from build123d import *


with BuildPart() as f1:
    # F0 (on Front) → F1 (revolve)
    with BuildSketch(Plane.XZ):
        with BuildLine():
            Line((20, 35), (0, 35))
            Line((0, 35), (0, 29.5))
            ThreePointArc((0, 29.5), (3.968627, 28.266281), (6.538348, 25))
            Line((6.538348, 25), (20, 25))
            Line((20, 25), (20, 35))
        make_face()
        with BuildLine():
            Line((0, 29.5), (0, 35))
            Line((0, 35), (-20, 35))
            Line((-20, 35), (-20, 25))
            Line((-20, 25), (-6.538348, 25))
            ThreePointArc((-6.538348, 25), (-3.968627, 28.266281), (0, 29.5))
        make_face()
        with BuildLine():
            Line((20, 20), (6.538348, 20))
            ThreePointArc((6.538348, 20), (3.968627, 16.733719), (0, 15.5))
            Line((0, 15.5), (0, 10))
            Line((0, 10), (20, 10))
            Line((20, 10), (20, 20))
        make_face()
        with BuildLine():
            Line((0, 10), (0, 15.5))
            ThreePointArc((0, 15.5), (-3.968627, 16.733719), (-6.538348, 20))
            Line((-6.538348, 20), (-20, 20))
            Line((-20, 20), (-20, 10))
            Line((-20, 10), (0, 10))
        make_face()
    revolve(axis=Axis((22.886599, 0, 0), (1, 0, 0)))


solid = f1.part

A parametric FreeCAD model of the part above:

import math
import FreeCAD as App
import Part
import Sketcher
Q = App.Units.Quantity

doc = App.newDocument("Part")
body = doc.addObject("PartDesign::Body", "Body")
body.AllowCompound = True

# Sketch on XZ plane
sketch1 = doc.addObject("Sketcher::SketchObject", "Sketch")
body.addObject(sketch1)
sketch1.AttachmentSupport = (doc.XZ_Plane, [""])
sketch1.MapMode = "FlatFace"
sketch1.addGeometry(Part.LineSegment(App.Vector(20, 35, 0), App.Vector(-20, 35, 0)), False)
sketch1.addGeometry(Part.LineSegment(App.Vector(-20, 35, 0), App.Vector(-20, 25, 0)), False)
sketch1.addGeometry(Part.LineSegment(App.Vector(-20, 25, 0), App.Vector(-7, 25, 0)), False)
sketch1.addGeometry(Part.ArcOfCircle(Part.Circle(App.Vector(0, 23, 0), App.Vector(0, 0, 1), 7), math.radians(90), math.radians(159)), False)
sketch1.addGeometry(Part.ArcOfCircle(Part.Circle(App.Vector(0, 23, 0), App.Vector(0, 0, 1), 7), math.radians(21), math.radians(90)), False)
sketch1.addGeometry(Part.LineSegment(App.Vector(7, 25, 0), App.Vector(20, 25, 0)), False)
sketch1.addGeometry(Part.LineSegment(App.Vector(20, 25, 0), App.Vector(20, 35, 0)), False)
sketch1.addGeometry(Part.LineSegment(App.Vector(20, 20, 0), App.Vector(7, 20, 0)), False)
sketch1.addGeometry(Part.ArcOfCircle(Part.Circle(App.Vector(0, 22, 0), App.Vector(0, 0, 1), 7), math.radians(-90), math.radians(-21)), False)
sketch1.addGeometry(Part.ArcOfCircle(Part.Circle(App.Vector(0, 22, 0), App.Vector(0, 0, 1), 7), math.radians(-159), math.radians(-90)), False)
sketch1.addGeometry(Part.LineSegment(App.Vector(-7, 20, 0), App.Vector(-20, 20, 0)), False)
sketch1.addGeometry(Part.LineSegment(App.Vector(-20, 20, 0), App.Vector(-20, 10, 0)), False)
sketch1.addGeometry(Part.LineSegment(App.Vector(-20, 10, 0), App.Vector(20, 10, 0)), False)
sketch1.addGeometry(Part.LineSegment(App.Vector(20, 10, 0), App.Vector(20, 20, 0)), False)
sketch1.addConstraint(Sketcher.Constraint("Coincident", 0, 2, 1, 1))
sketch1.addConstraint(Sketcher.Constraint("Coincident", 1, 2, 2, 1))
sketch1.addConstraint(Sketcher.Constraint("Coincident", 2, 2, 3, 2))
sketch1.addConstraint(Sketcher.Constraint("Tangent", 3, 1, 4, 2))
sketch1.addConstraint(Sketcher.Constraint("Coincident", 4, 1, 5, 1))
sketch1.addConstraint(Sketcher.Constraint("Coincident", 5, 2, 6, 1))
sketch1.addConstraint(Sketcher.Constraint("Coincident", 6, 2, 0, 1))
sketch1.addConstraint(Sketcher.Constraint("Coincident", 7, 2, 8, 2))
sketch1.addConstraint(Sketcher.Constraint("Tangent", 8, 1, 9, 2))
sketch1.addConstraint(Sketcher.Constraint("Coincident", 9, 1, 10, 1))
sketch1.addConstraint(Sketcher.Constraint("Coincident", 10, 2, 11, 1))
sketch1.addConstraint(Sketcher.Constraint("Coincident", 11, 2, 12, 1))
sketch1.addConstraint(Sketcher.Constraint("Coincident", 12, 2, 13, 1))
sketch1.addConstraint(Sketcher.Constraint("Coincident", 13, 2, 7, 1))
sketch1.addConstraint(Sketcher.Constraint("Horizontal", 0))
sketch1.addConstraint(Sketcher.Constraint("Vertical", 1))
sketch1.addConstraint(Sketcher.Constraint("Horizontal", 2))
sketch1.addConstraint(Sketcher.Constraint("Horizontal", 5))
sketch1.addConstraint(Sketcher.Constraint("Vertical", 6))
sketch1.addConstraint(Sketcher.Constraint("Horizontal", 7))
sketch1.addConstraint(Sketcher.Constraint("Horizontal", 10))
sketch1.addConstraint(Sketcher.Constraint("Vertical", 11))
sketch1.addConstraint(Sketcher.Constraint("Horizontal", 12))
sketch1.addConstraint(Sketcher.Constraint("Vertical", 13))
sketch1.addConstraint(Sketcher.Constraint("Coincident", 8, 3, 3, 3))
sketch1.addConstraint(Sketcher.Constraint("Equal", 3, 4))
sketch1.addConstraint(Sketcher.Constraint("Equal", 4, 8))
sketch1.addConstraint(Sketcher.Constraint("Equal", 8, 9))
sketch1.addConstraint(Sketcher.Constraint("Symmetric", 2, 2, 4, 1, -2))
sketch1.addConstraint(Sketcher.Constraint("Symmetric", 10, 2, 13, 2, -2))
sketch1.addConstraint(Sketcher.Constraint("PointOnObject", 3, 1, -2))
sketch1.addConstraint(Sketcher.Constraint("PointOnObject", 8, 1, -2))
sketch1.addConstraint(Sketcher.Constraint("Vertical", 4, 1, 7, 2))
sketch1.addConstraint(Sketcher.Constraint("Vertical", 1, 2, 10, 2))
sketch1.addConstraint(Sketcher.Constraint("Vertical", 6, 2, 12, 2))
sketch1.addConstraint(Sketcher.Constraint("Equal", 6, 11))
sketch1.addConstraint(Sketcher.Constraint("Radius", 3, Q("7 mm")))
sketch1.addConstraint(Sketcher.Constraint("DistanceX", 0, 2, 0, 1, Q("40 mm")))
sketch1.addConstraint(Sketcher.Constraint("DistanceY", 1, 2, 1, 1, Q("10 mm")))
sketch1.addConstraint(Sketcher.Constraint("DistanceY", -1, 1, 0, 2, Q("35 mm")))
sketch1.addConstraint(Sketcher.Constraint("DistanceY", -1, 1, 7, 2, Q("20 mm")))
revolution = doc.addObject("PartDesign::Revolution", "Revolution")
body.addObject(revolution)
revolution.Profile = sketch1
revolution.ReferenceAxis = (sketch1, ["H_Axis"])
revolution.Angle = 360

doc.recompute()
